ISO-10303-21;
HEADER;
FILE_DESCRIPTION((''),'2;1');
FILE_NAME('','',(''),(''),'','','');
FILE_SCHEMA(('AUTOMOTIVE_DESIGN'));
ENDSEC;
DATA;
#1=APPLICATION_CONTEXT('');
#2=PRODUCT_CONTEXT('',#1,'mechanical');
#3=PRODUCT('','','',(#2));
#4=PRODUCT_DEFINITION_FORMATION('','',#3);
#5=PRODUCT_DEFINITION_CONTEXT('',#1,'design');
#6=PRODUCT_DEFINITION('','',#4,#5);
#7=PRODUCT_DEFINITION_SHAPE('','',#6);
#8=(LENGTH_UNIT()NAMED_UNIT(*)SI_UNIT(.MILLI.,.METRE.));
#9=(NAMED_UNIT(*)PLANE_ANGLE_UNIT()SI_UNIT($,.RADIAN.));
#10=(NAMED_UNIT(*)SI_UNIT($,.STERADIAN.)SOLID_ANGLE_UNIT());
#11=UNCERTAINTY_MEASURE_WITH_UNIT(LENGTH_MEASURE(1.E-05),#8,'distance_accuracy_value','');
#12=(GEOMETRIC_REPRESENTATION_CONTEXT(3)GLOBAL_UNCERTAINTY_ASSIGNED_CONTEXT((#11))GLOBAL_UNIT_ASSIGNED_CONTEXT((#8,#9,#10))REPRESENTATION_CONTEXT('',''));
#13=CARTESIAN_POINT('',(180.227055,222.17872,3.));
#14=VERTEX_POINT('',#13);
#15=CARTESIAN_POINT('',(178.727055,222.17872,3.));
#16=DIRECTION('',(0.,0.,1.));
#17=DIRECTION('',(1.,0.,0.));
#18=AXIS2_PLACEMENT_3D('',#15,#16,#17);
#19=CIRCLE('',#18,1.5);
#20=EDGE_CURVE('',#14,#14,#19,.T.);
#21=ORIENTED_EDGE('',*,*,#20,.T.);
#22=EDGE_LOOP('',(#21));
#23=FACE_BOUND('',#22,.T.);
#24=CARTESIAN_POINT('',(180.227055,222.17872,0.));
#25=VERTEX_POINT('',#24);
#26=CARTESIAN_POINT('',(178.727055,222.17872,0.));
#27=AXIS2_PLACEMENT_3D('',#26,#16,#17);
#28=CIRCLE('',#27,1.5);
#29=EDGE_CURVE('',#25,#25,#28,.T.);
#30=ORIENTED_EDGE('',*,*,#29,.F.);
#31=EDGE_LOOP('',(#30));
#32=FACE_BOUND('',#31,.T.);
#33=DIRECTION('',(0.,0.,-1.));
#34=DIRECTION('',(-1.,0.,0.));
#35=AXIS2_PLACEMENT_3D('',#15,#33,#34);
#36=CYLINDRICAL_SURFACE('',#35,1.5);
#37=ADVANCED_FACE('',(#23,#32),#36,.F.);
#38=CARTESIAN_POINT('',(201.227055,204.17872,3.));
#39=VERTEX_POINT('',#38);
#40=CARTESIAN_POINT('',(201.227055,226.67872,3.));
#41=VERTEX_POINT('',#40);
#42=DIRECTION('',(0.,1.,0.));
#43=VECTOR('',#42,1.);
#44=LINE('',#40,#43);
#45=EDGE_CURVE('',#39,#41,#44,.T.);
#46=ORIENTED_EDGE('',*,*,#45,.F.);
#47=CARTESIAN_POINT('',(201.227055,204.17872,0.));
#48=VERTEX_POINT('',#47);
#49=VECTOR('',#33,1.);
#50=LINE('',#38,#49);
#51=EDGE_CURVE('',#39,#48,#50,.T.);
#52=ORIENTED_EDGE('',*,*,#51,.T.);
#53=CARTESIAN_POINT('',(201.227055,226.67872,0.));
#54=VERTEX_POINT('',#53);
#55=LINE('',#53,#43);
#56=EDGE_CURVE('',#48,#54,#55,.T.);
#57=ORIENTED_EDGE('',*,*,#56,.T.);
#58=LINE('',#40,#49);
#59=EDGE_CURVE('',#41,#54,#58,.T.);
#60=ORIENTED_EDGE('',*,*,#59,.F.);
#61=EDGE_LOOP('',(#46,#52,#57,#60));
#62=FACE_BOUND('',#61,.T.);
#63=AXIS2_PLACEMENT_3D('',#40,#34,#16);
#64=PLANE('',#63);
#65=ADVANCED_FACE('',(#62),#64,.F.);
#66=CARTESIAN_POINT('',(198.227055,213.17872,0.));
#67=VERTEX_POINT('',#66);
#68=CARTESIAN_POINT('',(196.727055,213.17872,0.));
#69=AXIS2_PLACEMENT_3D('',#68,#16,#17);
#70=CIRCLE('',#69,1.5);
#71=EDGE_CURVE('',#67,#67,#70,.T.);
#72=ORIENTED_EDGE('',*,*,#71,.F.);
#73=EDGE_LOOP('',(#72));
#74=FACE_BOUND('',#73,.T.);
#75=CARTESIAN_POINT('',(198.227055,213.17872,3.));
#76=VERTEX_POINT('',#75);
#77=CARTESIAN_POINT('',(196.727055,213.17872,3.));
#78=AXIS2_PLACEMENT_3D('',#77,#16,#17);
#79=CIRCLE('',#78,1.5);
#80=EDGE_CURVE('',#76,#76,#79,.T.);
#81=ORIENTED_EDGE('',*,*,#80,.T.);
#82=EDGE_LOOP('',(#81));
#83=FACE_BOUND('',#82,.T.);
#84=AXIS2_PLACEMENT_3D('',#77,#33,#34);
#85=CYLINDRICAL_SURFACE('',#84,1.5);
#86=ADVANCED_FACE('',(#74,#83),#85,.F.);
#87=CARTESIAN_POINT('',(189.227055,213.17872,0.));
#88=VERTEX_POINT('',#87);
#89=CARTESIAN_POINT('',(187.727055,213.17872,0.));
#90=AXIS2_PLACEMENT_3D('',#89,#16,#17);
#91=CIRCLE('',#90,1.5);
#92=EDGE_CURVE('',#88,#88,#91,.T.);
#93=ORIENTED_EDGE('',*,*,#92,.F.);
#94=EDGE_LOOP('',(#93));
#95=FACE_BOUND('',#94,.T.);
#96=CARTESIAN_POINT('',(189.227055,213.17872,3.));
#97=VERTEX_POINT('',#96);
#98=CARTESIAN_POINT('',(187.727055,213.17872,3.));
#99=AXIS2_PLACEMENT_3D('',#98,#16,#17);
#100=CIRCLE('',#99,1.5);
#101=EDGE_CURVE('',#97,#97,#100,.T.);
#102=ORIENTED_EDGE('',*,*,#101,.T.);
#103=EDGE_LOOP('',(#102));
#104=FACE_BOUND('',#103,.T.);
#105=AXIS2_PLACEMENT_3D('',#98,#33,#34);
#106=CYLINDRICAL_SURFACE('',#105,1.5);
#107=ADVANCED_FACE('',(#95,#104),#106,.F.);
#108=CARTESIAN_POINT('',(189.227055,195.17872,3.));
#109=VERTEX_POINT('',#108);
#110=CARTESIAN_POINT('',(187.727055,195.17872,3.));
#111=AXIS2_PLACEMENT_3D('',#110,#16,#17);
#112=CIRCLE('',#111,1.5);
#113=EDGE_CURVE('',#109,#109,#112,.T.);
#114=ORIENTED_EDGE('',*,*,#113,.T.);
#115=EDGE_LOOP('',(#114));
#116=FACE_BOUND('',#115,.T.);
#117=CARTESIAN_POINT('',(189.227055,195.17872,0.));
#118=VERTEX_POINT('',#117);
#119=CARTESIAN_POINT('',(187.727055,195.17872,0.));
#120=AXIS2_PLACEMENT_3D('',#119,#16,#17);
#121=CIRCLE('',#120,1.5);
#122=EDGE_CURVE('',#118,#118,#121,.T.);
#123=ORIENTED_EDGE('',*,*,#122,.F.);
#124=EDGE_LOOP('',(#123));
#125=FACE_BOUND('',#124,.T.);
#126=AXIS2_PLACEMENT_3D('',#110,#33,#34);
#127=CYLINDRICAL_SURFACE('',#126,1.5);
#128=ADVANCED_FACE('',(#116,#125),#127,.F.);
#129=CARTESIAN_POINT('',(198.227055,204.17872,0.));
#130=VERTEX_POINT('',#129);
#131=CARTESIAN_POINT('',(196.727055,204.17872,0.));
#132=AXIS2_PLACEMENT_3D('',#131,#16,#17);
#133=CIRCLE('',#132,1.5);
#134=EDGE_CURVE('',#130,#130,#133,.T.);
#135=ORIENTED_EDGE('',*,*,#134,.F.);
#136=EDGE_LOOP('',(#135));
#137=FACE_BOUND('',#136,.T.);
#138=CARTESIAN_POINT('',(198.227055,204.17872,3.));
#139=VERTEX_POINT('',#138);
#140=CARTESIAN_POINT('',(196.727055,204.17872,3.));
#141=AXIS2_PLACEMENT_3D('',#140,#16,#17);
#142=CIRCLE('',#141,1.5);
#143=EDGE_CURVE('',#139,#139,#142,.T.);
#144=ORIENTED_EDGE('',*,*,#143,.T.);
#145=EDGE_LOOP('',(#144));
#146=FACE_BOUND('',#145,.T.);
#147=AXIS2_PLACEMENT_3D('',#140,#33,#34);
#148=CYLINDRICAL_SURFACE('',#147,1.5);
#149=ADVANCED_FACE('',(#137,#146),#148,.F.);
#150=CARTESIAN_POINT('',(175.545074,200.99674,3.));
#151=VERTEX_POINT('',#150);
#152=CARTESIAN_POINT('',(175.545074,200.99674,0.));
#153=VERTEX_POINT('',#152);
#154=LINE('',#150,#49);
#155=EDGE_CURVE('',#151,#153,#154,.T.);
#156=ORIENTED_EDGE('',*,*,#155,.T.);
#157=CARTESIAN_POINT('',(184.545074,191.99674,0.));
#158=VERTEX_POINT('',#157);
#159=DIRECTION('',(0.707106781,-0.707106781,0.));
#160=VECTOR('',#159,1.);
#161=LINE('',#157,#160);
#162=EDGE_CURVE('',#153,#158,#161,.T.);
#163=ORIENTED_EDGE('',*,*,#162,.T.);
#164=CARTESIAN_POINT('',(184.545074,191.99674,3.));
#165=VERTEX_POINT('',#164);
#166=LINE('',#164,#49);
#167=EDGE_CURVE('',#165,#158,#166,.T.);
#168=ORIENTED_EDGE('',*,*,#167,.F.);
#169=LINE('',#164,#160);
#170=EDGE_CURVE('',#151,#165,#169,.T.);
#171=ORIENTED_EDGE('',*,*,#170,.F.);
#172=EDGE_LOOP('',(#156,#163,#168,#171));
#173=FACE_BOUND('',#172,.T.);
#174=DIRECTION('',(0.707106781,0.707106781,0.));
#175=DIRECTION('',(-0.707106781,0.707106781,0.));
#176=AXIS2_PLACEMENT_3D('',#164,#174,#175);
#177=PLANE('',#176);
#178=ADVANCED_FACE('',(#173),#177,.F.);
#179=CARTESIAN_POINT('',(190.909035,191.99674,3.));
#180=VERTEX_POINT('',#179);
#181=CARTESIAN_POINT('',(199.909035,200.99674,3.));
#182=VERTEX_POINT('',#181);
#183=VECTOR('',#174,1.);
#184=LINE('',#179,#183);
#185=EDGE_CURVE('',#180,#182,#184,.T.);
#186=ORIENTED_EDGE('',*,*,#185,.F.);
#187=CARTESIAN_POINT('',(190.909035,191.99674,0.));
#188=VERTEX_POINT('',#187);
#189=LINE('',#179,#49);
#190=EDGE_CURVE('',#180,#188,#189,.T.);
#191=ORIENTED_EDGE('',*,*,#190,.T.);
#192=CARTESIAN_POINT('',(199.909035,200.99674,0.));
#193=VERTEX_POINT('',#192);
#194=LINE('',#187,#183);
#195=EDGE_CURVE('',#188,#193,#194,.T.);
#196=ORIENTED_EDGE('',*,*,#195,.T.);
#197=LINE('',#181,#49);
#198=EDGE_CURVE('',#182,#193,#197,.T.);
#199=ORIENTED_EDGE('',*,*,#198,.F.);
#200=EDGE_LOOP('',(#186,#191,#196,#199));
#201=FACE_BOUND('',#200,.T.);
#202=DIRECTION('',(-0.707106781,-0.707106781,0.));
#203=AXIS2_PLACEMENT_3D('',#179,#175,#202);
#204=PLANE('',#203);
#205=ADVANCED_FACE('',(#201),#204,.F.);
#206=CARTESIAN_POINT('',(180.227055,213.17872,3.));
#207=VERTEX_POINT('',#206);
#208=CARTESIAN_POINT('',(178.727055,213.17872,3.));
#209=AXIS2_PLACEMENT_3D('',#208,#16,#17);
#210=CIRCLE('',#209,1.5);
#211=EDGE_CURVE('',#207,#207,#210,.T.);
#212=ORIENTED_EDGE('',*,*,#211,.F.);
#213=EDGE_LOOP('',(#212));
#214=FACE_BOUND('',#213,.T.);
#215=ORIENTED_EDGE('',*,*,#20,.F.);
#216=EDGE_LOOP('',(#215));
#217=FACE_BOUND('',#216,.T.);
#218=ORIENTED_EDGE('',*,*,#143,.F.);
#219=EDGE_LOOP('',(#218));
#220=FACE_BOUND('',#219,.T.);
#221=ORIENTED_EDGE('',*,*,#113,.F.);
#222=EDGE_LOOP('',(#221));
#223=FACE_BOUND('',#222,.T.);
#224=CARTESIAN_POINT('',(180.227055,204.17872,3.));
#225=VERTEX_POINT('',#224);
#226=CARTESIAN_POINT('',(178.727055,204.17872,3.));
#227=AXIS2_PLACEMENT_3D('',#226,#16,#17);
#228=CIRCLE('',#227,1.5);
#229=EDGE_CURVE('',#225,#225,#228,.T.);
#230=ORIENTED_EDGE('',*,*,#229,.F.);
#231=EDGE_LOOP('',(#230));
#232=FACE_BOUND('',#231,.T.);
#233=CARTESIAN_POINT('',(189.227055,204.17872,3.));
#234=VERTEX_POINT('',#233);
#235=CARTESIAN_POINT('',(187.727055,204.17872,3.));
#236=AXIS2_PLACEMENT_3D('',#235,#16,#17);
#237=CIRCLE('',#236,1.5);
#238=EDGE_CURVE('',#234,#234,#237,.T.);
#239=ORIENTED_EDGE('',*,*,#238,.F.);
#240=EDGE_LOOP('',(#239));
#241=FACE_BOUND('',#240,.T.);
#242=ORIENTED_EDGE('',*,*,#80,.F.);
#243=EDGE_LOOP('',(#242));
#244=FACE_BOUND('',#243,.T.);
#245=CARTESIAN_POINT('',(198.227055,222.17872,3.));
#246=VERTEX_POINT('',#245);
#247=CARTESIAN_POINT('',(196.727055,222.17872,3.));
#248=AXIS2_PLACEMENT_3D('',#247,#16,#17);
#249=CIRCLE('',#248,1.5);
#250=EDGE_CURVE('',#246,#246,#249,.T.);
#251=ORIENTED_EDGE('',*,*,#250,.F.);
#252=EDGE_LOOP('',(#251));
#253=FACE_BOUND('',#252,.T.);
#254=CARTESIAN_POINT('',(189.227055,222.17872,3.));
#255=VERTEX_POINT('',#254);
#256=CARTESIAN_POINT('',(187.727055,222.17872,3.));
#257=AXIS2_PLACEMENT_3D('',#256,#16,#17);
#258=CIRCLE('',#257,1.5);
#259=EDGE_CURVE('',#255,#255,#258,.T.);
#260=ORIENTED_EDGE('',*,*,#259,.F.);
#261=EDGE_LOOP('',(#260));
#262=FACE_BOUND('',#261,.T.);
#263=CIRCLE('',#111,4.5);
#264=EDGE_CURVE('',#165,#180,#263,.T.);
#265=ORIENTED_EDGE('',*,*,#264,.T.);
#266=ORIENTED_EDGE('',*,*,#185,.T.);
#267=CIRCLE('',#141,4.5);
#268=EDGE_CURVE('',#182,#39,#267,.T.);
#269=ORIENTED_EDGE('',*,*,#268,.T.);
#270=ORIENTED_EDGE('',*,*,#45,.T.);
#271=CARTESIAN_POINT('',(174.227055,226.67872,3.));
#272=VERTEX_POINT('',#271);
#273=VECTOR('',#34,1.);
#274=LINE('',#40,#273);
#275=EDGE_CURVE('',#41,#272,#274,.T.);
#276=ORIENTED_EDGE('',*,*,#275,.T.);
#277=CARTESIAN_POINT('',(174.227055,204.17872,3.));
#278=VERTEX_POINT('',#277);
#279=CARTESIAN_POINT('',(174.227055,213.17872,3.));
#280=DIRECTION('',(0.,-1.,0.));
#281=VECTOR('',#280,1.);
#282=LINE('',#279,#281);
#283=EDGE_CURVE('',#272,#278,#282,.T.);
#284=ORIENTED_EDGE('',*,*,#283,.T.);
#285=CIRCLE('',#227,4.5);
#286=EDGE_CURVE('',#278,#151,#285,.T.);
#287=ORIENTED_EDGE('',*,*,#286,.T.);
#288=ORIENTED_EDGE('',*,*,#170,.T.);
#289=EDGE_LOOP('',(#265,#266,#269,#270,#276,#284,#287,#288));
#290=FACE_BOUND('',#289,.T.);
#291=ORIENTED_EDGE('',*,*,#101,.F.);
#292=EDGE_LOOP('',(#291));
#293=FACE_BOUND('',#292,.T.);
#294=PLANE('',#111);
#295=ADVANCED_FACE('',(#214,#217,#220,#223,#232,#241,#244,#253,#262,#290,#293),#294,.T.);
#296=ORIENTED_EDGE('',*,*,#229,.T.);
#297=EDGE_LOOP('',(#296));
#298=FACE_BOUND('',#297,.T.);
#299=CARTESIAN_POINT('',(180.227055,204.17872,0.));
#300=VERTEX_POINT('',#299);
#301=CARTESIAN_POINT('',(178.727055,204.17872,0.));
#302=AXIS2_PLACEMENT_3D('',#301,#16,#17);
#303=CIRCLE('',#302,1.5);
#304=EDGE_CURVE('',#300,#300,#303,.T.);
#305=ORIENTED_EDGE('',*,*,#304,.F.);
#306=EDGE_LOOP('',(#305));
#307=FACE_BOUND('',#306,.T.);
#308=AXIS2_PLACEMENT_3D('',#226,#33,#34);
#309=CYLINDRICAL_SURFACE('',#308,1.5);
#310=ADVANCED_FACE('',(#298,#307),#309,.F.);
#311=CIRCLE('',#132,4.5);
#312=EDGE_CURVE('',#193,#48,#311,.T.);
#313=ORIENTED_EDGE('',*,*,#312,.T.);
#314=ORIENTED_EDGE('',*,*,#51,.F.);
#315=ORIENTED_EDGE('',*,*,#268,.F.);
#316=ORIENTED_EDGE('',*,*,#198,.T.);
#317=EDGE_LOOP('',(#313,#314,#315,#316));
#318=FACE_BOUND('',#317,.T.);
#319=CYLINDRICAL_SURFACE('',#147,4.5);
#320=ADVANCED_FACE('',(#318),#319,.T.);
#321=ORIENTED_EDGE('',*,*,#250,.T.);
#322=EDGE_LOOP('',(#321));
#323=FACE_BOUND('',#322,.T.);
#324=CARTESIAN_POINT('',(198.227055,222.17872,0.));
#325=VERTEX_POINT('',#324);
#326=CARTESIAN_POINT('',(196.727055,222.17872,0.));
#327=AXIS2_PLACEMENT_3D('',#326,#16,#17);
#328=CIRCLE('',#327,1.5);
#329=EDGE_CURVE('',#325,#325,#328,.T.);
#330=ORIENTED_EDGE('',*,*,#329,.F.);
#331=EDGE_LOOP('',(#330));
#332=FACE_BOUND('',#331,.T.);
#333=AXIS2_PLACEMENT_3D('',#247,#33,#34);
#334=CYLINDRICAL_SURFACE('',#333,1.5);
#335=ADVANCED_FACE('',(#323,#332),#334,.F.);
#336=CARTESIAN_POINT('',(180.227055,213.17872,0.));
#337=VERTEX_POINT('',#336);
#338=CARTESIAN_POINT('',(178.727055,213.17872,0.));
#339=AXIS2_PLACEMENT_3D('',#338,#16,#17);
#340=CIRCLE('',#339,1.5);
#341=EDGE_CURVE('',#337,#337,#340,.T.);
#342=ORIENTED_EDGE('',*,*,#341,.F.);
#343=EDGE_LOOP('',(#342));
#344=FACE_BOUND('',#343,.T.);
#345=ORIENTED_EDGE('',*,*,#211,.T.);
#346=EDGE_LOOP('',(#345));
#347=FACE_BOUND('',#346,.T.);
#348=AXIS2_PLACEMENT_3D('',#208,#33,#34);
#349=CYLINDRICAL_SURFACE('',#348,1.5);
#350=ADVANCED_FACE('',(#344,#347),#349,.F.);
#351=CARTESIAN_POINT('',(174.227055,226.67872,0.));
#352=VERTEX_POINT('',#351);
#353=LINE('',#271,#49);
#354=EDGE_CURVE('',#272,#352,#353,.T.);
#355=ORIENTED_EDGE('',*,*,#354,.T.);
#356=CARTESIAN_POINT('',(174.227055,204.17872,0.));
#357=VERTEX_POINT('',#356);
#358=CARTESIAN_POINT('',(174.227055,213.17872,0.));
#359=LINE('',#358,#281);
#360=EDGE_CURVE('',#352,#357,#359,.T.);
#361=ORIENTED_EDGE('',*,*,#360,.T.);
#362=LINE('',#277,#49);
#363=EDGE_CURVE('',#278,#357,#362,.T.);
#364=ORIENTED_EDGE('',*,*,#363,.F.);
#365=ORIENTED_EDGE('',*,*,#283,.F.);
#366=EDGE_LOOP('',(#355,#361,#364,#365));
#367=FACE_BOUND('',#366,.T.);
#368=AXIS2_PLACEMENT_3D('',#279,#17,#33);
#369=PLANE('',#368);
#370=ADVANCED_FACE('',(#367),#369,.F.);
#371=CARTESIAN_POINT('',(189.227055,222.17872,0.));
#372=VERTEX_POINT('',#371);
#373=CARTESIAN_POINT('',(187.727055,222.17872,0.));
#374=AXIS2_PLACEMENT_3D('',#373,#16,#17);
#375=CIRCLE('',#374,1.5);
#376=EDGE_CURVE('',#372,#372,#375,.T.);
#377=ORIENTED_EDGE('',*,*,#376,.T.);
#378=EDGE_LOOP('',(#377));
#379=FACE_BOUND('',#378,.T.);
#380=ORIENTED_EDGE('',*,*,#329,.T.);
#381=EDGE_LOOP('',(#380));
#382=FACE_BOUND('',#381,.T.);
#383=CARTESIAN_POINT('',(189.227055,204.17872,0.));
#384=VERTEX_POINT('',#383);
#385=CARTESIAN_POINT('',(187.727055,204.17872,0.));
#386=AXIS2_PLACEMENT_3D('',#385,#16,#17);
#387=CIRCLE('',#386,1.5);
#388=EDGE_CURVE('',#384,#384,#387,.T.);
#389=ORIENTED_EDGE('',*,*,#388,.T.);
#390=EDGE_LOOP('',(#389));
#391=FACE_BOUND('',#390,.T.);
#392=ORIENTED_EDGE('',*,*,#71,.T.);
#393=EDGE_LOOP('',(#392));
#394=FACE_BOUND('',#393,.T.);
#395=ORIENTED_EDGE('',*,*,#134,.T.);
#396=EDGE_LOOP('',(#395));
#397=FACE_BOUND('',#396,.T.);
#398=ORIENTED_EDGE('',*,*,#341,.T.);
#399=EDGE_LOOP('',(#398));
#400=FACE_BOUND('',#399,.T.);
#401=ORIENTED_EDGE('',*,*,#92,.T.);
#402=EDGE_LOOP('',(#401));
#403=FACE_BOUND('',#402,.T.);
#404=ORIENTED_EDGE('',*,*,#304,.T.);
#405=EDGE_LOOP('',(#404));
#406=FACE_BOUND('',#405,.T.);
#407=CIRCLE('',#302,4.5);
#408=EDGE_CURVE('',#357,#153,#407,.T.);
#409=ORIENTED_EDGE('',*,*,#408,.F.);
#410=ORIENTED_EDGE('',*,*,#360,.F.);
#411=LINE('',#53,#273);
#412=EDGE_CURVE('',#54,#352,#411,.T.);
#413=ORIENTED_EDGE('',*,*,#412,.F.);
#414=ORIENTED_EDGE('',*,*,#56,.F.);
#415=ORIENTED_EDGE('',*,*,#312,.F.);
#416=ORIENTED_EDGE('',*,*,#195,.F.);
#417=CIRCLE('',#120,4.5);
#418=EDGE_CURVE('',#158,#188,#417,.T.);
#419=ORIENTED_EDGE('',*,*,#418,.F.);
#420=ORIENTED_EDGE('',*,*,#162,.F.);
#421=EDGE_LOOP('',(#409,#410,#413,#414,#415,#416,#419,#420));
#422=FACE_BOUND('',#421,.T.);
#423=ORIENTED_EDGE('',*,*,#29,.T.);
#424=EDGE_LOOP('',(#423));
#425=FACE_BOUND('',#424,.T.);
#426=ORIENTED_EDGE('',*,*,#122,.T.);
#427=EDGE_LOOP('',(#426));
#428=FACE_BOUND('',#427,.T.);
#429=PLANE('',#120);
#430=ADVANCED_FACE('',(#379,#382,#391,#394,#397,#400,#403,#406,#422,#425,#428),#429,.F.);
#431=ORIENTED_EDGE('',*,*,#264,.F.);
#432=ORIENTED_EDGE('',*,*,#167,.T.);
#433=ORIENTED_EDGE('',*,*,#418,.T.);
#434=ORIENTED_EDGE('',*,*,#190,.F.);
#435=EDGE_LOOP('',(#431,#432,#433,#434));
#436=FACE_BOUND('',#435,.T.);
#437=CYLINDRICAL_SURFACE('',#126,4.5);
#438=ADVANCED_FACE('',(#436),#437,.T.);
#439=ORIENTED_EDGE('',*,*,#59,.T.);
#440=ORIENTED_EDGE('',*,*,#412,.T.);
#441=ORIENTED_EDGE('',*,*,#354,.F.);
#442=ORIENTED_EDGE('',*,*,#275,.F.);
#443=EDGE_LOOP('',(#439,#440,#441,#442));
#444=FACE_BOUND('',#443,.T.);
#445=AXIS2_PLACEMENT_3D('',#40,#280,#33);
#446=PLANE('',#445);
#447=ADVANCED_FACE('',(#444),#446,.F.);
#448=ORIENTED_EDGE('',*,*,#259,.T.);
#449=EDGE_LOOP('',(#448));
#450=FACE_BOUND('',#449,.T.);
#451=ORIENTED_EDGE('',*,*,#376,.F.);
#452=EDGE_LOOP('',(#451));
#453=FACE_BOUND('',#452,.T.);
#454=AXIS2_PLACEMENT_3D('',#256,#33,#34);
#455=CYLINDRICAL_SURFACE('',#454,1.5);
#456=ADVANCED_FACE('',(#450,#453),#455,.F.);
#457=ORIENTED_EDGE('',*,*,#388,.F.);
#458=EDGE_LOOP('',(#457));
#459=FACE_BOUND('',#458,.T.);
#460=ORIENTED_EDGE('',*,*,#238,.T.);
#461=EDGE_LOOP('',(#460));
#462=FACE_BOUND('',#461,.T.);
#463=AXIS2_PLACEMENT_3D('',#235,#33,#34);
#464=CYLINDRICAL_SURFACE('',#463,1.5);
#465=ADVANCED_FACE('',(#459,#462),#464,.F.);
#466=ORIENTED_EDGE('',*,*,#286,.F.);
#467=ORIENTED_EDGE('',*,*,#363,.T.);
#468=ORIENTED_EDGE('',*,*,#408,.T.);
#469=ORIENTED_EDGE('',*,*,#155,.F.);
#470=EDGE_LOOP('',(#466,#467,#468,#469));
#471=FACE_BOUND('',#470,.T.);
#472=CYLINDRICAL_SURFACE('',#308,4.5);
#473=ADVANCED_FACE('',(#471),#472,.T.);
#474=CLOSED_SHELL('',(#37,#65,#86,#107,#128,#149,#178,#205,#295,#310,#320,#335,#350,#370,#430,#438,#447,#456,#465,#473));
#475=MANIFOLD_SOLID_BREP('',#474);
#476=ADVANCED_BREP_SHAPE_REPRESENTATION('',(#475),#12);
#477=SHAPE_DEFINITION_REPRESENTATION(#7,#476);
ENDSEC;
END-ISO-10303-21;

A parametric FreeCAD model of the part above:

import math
import FreeCAD as App
import Part
import Sketcher
from FreeCAD import Vector
Q = App.Units.Quantity

doc = App.newDocument("Part")
body = doc.addObject("PartDesign::Body", "Body")

sketch1 = body.newObject("Sketcher::SketchObject", "Sketch")
sketch1.AttachmentSupport = (doc.getObject("XY_Plane"), [""])
sketch1.MapMode = "FlatFace"
sketch1.addGeometry([
    Part.ArcOfCircle(Part.Circle(Vector(178.7, 204.2, 0), Vector(0, 0, 1), 4.5), math.radians(180), math.radians(225)),
    Part.LineSegment(Vector(175.5, 201, 0), Vector(184.5, 192, 0)),
    Part.ArcOfCircle(Part.Circle(Vector(187.7, 195.2, 0), Vector(0, 0, 1), 4.5), math.radians(-135), math.radians(-45)),
    Part.LineSegment(Vector(190.9, 192, 0), Vector(199.9, 201, 0)),
    Part.ArcOfCircle(Part.Circle(Vector(196.7, 204.2, 0), Vector(0, 0, 1), 4.5), math.radians(-45), math.radians(0)),
    Part.LineSegment(Vector(201.2, 204.2, 0), Vector(201.2, 226.7, 0)),
    Part.LineSegment(Vector(201.2, 226.7, 0), Vector(174.2, 226.7, 0)),
    Part.LineSegment(Vector(174.2, 226.7, 0), Vector(174.2, 204.2, 0)),
    Part.Circle(Vector(178.7, 204.2, 0), Vector(0, 0, 1), 1.5),
    Part.Circle(Vector(187.7, 195.2, 0), Vector(0, 0, 1), 1.5),
    Part.Circle(Vector(187.7, 204.2, 0), Vector(0, 0, 1), 1.5),
    Part.Circle(Vector(196.7, 204.2, 0), Vector(0, 0, 1), 1.5),
    Part.Circle(Vector(178.7, 213.2, 0), Vector(0, 0, 1), 1.5),
    Part.Circle(Vector(178.7, 222.2, 0), Vector(0, 0, 1), 1.5),
    Part.Circle(Vector(187.7, 213.2, 0), Vector(0, 0, 1), 1.5),
    Part.Circle(Vector(196.7, 213.2, 0), Vector(0, 0, 1), 1.5),
    Part.Circle(Vector(187.7, 222.2, 0), Vector(0, 0, 1), 1.5),
    Part.Circle(Vector(196.7, 222.2, 0), Vector(0, 0, 1), 1.5),
], False)
sketch1.addConstraint([
    Sketcher.Constraint("Tangent", 0, 2, 1, 1),
    Sketcher.Constraint("Tangent", 1, 2, 2, 1),
    Sketcher.Constraint("Tangent", 2, 2, 3, 1),
    Sketcher.Constraint("Tangent", 3, 2, 4, 1),
    Sketcher.Constraint("Tangent", 4, 2, 5, 1),
    Sketcher.Constraint("Coincident", 5, 2, 6, 1),
    Sketcher.Constraint("Coincident", 6, 2, 7, 1),
    Sketcher.Constraint("Tangent", 7, 2, 0, 1),
    Sketcher.Constraint("Vertical", 5),
    Sketcher.Constraint("Horizontal", 6),
    Sketcher.Constraint("Vertical", 7),
    Sketcher.Constraint("Coincident", 8, 3, 0, 3),
    Sketcher.Constraint("Coincident", 9, 3, 2, 3),
    Sketcher.Constraint("Coincident", 11, 3, 4, 3),
    Sketcher.Constraint("Equal", 0, 2),
    Sketcher.Constraint("Equal", 2, 4),
    Sketcher.Constraint("Equal", 8, 9),
    Sketcher.Constraint("Equal", 9, 10),
    Sketcher.Constraint("Equal", 10, 11),
    Sketcher.Constraint("Equal", 11, 12),
    Sketcher.Constraint("Equal", 12, 13),
    Sketcher.Constraint("Equal", 13, 14),
    Sketcher.Constraint("Equal", 14, 15),
    Sketcher.Constraint("Equal", 15, 16),
    Sketcher.Constraint("Equal", 16, 17),
    Sketcher.Constraint("Perpendicular", 1, 3),
    Sketcher.Constraint("Horizontal", 0, 3, 4, 3),
    Sketcher.Constraint("Horizontal", 8, 3, 10, 3),
    Sketcher.Constraint("Horizontal", 12, 3, 14, 3),
    Sketcher.Constraint("Horizontal", 14, 3, 15, 3),
    Sketcher.Constraint("Horizontal", 13, 3, 16, 3),
    Sketcher.Constraint("Horizontal", 16, 3, 17, 3),
    Sketcher.Constraint("Horizontal", 1, 2, 2, 2),
    Sketcher.Constraint("Vertical", 9, 3, 10, 3),
    Sketcher.Constraint("Vertical", 8, 3, 12, 3),
    Sketcher.Constraint("Vertical", 12, 3, 13, 3),
    Sketcher.Constraint("Vertical", 10, 3, 14, 3),
    Sketcher.Constraint("Vertical", 11, 3, 15, 3),
    Sketcher.Constraint("Vertical", 14, 3, 16, 3),
    Sketcher.Constraint("Vertical", 15, 3, 17, 3),
    Sketcher.Constraint("Diameter", 8, Q("3 mm")),
    Sketcher.Constraint("Radius", 0, Q("4.5 mm")),
    Sketcher.Constraint("DistanceX", 6, 2, 6, 1, Q("27 mm")),
    Sketcher.Constraint("DistanceY", 5, 1, 5, 2, Q("22.5 mm")),
    Sketcher.Constraint("DistanceY", 8, 3, 12, 3, Q("9 mm")),
    Sketcher.Constraint("DistanceY", 12, 3, 13, 3, Q("9 mm")),
    Sketcher.Constraint("DistanceY", -1, 1, 0, 3, Q("204.17872 mm")),
    Sketcher.Constraint("DistanceX", -1, 1, 0, 3, Q("178.727055 mm")),
])
pad1 = body.newObject("PartDesign::Pad", "Pad")
pad1.Profile = sketch1
pad1.Length = 3

doc.recompute()
